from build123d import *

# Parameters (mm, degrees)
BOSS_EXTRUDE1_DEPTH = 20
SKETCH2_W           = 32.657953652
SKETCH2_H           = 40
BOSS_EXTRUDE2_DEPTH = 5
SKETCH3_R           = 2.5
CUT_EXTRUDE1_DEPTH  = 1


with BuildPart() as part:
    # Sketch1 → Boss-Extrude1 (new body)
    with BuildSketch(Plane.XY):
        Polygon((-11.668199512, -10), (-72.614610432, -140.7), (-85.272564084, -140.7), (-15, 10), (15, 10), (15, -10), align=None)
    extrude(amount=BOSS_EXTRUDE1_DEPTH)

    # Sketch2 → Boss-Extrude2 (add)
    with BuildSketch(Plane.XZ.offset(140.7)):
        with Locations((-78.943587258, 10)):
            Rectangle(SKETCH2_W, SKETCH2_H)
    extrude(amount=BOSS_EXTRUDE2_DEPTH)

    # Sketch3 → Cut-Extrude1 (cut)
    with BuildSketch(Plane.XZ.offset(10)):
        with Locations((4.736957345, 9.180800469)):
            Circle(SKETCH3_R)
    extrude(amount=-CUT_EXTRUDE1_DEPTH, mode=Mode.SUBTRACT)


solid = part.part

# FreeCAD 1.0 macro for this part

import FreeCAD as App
import Part
import Sketcher
Q = App.Units.Quantity

doc = App.newDocument("Part")
body = doc.addObject("PartDesign::Body", "Body")

# Sketch on XY plane
sketch1 = body.newObject("Sketcher::SketchObject", "Sketch")
sketch1.AttachmentSupport = (doc.getObject("XY_Plane"), [""])
sketch1.MapMode = "FlatFace"
sketch1.addGeometry([
    Part.LineSegment(App.Vector(-73, -141, 0), App.Vector(-12, -10, 0)),  # 0
    Part.LineSegment(App.Vector(-12, -10, 0), App.Vector(15, -10, 0)),  # 1
    Part.LineSegment(App.Vector(15, -10, 0), App.Vector(15, 10, 0)),  # 2
    Part.LineSegment(App.Vector(15, 10, 0), App.Vector(-15, 10, 0)),  # 3
    Part.LineSegment(App.Vector(-15, 10, 0), App.Vector(-85, -141, 0)),  # 4
    Part.LineSegment(App.Vector(-85, -141, 0), App.Vector(-73, -141, 0)),  # 5
], False)
sketch1.addConstraint([
    Sketcher.Constraint("Coincident", 0, 2, 1, 1),
    Sketcher.Constraint("Coincident", 1, 2, 2, 1),
    Sketcher.Constraint("Coincident", 2, 2, 3, 1),
    Sketcher.Constraint("Coincident", 3, 2, 4, 1),
    Sketcher.Constraint("Coincident", 4, 2, 5, 1),
    Sketcher.Constraint("Coincident", 5, 2, 0, 1),
    Sketcher.Constraint("Horizontal", 1),
    Sketcher.Constraint("Vertical", 2),
    Sketcher.Constraint("Horizontal", 3),
    Sketcher.Constraint("Horizontal", 5),
    Sketcher.Constraint("Symmetric", 1, 2, 3, 2, -1, 1),
    Sketcher.Constraint("Parallel", 0, 4),
    Sketcher.Constraint("DistanceX", 3, 2, 3, 1, Q("30 mm")),
    Sketcher.Constraint("DistanceY", 2, 1, 2, 2, Q("20 mm")),
    Sketcher.Constraint("Angle", 0, Q("65 deg")),
    Sketcher.Constraint("DistanceY", 4, 2, -1, 1, Q("140.7 mm")),
    Sketcher.Constraint("DistanceX", 1, 1, 1, 2, Q("26.6682 mm")),
])
pad1 = body.newObject("PartDesign::Pad", "Pad")
pad1.Profile = sketch1
pad1.Length = 20

# Sketch on XZ plane
sketch2 = body.newObject("Sketcher::SketchObject", "Sketch001")
sketch2.AttachmentSupport = (doc.getObject("XZ_Plane"), [""])
sketch2.MapMode = "FlatFace"
sketch2.AttachmentOffset = App.Placement(App.Vector(0, 0, 140.7), App.Rotation())
sketch2.addGeometry([
    Part.LineSegment(App.Vector(-95, 30, 0), App.Vector(-95, -10, 0)),
    Part.LineSegment(App.Vector(-95, -10, 0), App.Vector(-63, -10, 0)),
    Part.LineSegment(App.Vector(-63, -10, 0), App.Vector(-63, 30, 0)),
    Part.LineSegment(App.Vector(-63, 30, 0), App.Vector(-95, 30, 0)),
], False)
sketch2.addConstraint([
    Sketcher.Constraint("Coincident", 0, 2, 1, 1),
    Sketcher.Constraint("Coincident", 1, 2, 2, 1),
    Sketcher.Constraint("Coincident", 2, 2, 3, 1),
    Sketcher.Constraint("Coincident", 3, 2, 0, 1),
    Sketcher.Constraint("Vertical", 0),
    Sketcher.Constraint("Horizontal", 1),
    Sketcher.Constraint("Vertical", 2),
    Sketcher.Constraint("Horizontal", 3),
    Sketcher.Constraint("DistanceY", 0, 2, 0, 1, Q("40 mm")),
    Sketcher.Constraint("DistanceY", 0, 2, -1, 1, Q("10 mm")),
    Sketcher.Constraint("DistanceX", 1, 1, 1, 2, Q("32.657954 mm")),
    Sketcher.Constraint("DistanceX", 1, 2, -1, 1, Q("62.61461 mm")),
])
pad2 = body.newObject("PartDesign::Pad", "Pad001")
pad2.Profile = sketch2
pad2.Length = 5

# Sketch on XZ plane
sketch3 = body.newObject("Sketcher::SketchObject", "Sketch002")
sketch3.AttachmentSupport = (doc.getObject("XZ_Plane"), [""])
sketch3.MapMode = "FlatFace"
sketch3.AttachmentOffset = App.Placement(App.Vector(0, 0, 10), App.Rotation())
sketch3.addGeometry(Part.Circle(App.Vector(4.7, 9.2, 0), App.Vector(0, 0, 1), 2.5), False)
sketch3.addConstraint([
    Sketcher.Constraint("Diameter", 0, Q("5 mm")),
    Sketcher.Constraint("DistanceY", -1, 1, 0, 3, Q("9.1808 mm")),
    Sketcher.Constraint("DistanceX", -1, 1, 0, 3, Q("4.736957 mm")),
])
pocket1 = body.newObject("PartDesign::Pocket", "Pocket")
pocket1.Profile = sketch3
pocket1.Length = 1

doc.recompute()
